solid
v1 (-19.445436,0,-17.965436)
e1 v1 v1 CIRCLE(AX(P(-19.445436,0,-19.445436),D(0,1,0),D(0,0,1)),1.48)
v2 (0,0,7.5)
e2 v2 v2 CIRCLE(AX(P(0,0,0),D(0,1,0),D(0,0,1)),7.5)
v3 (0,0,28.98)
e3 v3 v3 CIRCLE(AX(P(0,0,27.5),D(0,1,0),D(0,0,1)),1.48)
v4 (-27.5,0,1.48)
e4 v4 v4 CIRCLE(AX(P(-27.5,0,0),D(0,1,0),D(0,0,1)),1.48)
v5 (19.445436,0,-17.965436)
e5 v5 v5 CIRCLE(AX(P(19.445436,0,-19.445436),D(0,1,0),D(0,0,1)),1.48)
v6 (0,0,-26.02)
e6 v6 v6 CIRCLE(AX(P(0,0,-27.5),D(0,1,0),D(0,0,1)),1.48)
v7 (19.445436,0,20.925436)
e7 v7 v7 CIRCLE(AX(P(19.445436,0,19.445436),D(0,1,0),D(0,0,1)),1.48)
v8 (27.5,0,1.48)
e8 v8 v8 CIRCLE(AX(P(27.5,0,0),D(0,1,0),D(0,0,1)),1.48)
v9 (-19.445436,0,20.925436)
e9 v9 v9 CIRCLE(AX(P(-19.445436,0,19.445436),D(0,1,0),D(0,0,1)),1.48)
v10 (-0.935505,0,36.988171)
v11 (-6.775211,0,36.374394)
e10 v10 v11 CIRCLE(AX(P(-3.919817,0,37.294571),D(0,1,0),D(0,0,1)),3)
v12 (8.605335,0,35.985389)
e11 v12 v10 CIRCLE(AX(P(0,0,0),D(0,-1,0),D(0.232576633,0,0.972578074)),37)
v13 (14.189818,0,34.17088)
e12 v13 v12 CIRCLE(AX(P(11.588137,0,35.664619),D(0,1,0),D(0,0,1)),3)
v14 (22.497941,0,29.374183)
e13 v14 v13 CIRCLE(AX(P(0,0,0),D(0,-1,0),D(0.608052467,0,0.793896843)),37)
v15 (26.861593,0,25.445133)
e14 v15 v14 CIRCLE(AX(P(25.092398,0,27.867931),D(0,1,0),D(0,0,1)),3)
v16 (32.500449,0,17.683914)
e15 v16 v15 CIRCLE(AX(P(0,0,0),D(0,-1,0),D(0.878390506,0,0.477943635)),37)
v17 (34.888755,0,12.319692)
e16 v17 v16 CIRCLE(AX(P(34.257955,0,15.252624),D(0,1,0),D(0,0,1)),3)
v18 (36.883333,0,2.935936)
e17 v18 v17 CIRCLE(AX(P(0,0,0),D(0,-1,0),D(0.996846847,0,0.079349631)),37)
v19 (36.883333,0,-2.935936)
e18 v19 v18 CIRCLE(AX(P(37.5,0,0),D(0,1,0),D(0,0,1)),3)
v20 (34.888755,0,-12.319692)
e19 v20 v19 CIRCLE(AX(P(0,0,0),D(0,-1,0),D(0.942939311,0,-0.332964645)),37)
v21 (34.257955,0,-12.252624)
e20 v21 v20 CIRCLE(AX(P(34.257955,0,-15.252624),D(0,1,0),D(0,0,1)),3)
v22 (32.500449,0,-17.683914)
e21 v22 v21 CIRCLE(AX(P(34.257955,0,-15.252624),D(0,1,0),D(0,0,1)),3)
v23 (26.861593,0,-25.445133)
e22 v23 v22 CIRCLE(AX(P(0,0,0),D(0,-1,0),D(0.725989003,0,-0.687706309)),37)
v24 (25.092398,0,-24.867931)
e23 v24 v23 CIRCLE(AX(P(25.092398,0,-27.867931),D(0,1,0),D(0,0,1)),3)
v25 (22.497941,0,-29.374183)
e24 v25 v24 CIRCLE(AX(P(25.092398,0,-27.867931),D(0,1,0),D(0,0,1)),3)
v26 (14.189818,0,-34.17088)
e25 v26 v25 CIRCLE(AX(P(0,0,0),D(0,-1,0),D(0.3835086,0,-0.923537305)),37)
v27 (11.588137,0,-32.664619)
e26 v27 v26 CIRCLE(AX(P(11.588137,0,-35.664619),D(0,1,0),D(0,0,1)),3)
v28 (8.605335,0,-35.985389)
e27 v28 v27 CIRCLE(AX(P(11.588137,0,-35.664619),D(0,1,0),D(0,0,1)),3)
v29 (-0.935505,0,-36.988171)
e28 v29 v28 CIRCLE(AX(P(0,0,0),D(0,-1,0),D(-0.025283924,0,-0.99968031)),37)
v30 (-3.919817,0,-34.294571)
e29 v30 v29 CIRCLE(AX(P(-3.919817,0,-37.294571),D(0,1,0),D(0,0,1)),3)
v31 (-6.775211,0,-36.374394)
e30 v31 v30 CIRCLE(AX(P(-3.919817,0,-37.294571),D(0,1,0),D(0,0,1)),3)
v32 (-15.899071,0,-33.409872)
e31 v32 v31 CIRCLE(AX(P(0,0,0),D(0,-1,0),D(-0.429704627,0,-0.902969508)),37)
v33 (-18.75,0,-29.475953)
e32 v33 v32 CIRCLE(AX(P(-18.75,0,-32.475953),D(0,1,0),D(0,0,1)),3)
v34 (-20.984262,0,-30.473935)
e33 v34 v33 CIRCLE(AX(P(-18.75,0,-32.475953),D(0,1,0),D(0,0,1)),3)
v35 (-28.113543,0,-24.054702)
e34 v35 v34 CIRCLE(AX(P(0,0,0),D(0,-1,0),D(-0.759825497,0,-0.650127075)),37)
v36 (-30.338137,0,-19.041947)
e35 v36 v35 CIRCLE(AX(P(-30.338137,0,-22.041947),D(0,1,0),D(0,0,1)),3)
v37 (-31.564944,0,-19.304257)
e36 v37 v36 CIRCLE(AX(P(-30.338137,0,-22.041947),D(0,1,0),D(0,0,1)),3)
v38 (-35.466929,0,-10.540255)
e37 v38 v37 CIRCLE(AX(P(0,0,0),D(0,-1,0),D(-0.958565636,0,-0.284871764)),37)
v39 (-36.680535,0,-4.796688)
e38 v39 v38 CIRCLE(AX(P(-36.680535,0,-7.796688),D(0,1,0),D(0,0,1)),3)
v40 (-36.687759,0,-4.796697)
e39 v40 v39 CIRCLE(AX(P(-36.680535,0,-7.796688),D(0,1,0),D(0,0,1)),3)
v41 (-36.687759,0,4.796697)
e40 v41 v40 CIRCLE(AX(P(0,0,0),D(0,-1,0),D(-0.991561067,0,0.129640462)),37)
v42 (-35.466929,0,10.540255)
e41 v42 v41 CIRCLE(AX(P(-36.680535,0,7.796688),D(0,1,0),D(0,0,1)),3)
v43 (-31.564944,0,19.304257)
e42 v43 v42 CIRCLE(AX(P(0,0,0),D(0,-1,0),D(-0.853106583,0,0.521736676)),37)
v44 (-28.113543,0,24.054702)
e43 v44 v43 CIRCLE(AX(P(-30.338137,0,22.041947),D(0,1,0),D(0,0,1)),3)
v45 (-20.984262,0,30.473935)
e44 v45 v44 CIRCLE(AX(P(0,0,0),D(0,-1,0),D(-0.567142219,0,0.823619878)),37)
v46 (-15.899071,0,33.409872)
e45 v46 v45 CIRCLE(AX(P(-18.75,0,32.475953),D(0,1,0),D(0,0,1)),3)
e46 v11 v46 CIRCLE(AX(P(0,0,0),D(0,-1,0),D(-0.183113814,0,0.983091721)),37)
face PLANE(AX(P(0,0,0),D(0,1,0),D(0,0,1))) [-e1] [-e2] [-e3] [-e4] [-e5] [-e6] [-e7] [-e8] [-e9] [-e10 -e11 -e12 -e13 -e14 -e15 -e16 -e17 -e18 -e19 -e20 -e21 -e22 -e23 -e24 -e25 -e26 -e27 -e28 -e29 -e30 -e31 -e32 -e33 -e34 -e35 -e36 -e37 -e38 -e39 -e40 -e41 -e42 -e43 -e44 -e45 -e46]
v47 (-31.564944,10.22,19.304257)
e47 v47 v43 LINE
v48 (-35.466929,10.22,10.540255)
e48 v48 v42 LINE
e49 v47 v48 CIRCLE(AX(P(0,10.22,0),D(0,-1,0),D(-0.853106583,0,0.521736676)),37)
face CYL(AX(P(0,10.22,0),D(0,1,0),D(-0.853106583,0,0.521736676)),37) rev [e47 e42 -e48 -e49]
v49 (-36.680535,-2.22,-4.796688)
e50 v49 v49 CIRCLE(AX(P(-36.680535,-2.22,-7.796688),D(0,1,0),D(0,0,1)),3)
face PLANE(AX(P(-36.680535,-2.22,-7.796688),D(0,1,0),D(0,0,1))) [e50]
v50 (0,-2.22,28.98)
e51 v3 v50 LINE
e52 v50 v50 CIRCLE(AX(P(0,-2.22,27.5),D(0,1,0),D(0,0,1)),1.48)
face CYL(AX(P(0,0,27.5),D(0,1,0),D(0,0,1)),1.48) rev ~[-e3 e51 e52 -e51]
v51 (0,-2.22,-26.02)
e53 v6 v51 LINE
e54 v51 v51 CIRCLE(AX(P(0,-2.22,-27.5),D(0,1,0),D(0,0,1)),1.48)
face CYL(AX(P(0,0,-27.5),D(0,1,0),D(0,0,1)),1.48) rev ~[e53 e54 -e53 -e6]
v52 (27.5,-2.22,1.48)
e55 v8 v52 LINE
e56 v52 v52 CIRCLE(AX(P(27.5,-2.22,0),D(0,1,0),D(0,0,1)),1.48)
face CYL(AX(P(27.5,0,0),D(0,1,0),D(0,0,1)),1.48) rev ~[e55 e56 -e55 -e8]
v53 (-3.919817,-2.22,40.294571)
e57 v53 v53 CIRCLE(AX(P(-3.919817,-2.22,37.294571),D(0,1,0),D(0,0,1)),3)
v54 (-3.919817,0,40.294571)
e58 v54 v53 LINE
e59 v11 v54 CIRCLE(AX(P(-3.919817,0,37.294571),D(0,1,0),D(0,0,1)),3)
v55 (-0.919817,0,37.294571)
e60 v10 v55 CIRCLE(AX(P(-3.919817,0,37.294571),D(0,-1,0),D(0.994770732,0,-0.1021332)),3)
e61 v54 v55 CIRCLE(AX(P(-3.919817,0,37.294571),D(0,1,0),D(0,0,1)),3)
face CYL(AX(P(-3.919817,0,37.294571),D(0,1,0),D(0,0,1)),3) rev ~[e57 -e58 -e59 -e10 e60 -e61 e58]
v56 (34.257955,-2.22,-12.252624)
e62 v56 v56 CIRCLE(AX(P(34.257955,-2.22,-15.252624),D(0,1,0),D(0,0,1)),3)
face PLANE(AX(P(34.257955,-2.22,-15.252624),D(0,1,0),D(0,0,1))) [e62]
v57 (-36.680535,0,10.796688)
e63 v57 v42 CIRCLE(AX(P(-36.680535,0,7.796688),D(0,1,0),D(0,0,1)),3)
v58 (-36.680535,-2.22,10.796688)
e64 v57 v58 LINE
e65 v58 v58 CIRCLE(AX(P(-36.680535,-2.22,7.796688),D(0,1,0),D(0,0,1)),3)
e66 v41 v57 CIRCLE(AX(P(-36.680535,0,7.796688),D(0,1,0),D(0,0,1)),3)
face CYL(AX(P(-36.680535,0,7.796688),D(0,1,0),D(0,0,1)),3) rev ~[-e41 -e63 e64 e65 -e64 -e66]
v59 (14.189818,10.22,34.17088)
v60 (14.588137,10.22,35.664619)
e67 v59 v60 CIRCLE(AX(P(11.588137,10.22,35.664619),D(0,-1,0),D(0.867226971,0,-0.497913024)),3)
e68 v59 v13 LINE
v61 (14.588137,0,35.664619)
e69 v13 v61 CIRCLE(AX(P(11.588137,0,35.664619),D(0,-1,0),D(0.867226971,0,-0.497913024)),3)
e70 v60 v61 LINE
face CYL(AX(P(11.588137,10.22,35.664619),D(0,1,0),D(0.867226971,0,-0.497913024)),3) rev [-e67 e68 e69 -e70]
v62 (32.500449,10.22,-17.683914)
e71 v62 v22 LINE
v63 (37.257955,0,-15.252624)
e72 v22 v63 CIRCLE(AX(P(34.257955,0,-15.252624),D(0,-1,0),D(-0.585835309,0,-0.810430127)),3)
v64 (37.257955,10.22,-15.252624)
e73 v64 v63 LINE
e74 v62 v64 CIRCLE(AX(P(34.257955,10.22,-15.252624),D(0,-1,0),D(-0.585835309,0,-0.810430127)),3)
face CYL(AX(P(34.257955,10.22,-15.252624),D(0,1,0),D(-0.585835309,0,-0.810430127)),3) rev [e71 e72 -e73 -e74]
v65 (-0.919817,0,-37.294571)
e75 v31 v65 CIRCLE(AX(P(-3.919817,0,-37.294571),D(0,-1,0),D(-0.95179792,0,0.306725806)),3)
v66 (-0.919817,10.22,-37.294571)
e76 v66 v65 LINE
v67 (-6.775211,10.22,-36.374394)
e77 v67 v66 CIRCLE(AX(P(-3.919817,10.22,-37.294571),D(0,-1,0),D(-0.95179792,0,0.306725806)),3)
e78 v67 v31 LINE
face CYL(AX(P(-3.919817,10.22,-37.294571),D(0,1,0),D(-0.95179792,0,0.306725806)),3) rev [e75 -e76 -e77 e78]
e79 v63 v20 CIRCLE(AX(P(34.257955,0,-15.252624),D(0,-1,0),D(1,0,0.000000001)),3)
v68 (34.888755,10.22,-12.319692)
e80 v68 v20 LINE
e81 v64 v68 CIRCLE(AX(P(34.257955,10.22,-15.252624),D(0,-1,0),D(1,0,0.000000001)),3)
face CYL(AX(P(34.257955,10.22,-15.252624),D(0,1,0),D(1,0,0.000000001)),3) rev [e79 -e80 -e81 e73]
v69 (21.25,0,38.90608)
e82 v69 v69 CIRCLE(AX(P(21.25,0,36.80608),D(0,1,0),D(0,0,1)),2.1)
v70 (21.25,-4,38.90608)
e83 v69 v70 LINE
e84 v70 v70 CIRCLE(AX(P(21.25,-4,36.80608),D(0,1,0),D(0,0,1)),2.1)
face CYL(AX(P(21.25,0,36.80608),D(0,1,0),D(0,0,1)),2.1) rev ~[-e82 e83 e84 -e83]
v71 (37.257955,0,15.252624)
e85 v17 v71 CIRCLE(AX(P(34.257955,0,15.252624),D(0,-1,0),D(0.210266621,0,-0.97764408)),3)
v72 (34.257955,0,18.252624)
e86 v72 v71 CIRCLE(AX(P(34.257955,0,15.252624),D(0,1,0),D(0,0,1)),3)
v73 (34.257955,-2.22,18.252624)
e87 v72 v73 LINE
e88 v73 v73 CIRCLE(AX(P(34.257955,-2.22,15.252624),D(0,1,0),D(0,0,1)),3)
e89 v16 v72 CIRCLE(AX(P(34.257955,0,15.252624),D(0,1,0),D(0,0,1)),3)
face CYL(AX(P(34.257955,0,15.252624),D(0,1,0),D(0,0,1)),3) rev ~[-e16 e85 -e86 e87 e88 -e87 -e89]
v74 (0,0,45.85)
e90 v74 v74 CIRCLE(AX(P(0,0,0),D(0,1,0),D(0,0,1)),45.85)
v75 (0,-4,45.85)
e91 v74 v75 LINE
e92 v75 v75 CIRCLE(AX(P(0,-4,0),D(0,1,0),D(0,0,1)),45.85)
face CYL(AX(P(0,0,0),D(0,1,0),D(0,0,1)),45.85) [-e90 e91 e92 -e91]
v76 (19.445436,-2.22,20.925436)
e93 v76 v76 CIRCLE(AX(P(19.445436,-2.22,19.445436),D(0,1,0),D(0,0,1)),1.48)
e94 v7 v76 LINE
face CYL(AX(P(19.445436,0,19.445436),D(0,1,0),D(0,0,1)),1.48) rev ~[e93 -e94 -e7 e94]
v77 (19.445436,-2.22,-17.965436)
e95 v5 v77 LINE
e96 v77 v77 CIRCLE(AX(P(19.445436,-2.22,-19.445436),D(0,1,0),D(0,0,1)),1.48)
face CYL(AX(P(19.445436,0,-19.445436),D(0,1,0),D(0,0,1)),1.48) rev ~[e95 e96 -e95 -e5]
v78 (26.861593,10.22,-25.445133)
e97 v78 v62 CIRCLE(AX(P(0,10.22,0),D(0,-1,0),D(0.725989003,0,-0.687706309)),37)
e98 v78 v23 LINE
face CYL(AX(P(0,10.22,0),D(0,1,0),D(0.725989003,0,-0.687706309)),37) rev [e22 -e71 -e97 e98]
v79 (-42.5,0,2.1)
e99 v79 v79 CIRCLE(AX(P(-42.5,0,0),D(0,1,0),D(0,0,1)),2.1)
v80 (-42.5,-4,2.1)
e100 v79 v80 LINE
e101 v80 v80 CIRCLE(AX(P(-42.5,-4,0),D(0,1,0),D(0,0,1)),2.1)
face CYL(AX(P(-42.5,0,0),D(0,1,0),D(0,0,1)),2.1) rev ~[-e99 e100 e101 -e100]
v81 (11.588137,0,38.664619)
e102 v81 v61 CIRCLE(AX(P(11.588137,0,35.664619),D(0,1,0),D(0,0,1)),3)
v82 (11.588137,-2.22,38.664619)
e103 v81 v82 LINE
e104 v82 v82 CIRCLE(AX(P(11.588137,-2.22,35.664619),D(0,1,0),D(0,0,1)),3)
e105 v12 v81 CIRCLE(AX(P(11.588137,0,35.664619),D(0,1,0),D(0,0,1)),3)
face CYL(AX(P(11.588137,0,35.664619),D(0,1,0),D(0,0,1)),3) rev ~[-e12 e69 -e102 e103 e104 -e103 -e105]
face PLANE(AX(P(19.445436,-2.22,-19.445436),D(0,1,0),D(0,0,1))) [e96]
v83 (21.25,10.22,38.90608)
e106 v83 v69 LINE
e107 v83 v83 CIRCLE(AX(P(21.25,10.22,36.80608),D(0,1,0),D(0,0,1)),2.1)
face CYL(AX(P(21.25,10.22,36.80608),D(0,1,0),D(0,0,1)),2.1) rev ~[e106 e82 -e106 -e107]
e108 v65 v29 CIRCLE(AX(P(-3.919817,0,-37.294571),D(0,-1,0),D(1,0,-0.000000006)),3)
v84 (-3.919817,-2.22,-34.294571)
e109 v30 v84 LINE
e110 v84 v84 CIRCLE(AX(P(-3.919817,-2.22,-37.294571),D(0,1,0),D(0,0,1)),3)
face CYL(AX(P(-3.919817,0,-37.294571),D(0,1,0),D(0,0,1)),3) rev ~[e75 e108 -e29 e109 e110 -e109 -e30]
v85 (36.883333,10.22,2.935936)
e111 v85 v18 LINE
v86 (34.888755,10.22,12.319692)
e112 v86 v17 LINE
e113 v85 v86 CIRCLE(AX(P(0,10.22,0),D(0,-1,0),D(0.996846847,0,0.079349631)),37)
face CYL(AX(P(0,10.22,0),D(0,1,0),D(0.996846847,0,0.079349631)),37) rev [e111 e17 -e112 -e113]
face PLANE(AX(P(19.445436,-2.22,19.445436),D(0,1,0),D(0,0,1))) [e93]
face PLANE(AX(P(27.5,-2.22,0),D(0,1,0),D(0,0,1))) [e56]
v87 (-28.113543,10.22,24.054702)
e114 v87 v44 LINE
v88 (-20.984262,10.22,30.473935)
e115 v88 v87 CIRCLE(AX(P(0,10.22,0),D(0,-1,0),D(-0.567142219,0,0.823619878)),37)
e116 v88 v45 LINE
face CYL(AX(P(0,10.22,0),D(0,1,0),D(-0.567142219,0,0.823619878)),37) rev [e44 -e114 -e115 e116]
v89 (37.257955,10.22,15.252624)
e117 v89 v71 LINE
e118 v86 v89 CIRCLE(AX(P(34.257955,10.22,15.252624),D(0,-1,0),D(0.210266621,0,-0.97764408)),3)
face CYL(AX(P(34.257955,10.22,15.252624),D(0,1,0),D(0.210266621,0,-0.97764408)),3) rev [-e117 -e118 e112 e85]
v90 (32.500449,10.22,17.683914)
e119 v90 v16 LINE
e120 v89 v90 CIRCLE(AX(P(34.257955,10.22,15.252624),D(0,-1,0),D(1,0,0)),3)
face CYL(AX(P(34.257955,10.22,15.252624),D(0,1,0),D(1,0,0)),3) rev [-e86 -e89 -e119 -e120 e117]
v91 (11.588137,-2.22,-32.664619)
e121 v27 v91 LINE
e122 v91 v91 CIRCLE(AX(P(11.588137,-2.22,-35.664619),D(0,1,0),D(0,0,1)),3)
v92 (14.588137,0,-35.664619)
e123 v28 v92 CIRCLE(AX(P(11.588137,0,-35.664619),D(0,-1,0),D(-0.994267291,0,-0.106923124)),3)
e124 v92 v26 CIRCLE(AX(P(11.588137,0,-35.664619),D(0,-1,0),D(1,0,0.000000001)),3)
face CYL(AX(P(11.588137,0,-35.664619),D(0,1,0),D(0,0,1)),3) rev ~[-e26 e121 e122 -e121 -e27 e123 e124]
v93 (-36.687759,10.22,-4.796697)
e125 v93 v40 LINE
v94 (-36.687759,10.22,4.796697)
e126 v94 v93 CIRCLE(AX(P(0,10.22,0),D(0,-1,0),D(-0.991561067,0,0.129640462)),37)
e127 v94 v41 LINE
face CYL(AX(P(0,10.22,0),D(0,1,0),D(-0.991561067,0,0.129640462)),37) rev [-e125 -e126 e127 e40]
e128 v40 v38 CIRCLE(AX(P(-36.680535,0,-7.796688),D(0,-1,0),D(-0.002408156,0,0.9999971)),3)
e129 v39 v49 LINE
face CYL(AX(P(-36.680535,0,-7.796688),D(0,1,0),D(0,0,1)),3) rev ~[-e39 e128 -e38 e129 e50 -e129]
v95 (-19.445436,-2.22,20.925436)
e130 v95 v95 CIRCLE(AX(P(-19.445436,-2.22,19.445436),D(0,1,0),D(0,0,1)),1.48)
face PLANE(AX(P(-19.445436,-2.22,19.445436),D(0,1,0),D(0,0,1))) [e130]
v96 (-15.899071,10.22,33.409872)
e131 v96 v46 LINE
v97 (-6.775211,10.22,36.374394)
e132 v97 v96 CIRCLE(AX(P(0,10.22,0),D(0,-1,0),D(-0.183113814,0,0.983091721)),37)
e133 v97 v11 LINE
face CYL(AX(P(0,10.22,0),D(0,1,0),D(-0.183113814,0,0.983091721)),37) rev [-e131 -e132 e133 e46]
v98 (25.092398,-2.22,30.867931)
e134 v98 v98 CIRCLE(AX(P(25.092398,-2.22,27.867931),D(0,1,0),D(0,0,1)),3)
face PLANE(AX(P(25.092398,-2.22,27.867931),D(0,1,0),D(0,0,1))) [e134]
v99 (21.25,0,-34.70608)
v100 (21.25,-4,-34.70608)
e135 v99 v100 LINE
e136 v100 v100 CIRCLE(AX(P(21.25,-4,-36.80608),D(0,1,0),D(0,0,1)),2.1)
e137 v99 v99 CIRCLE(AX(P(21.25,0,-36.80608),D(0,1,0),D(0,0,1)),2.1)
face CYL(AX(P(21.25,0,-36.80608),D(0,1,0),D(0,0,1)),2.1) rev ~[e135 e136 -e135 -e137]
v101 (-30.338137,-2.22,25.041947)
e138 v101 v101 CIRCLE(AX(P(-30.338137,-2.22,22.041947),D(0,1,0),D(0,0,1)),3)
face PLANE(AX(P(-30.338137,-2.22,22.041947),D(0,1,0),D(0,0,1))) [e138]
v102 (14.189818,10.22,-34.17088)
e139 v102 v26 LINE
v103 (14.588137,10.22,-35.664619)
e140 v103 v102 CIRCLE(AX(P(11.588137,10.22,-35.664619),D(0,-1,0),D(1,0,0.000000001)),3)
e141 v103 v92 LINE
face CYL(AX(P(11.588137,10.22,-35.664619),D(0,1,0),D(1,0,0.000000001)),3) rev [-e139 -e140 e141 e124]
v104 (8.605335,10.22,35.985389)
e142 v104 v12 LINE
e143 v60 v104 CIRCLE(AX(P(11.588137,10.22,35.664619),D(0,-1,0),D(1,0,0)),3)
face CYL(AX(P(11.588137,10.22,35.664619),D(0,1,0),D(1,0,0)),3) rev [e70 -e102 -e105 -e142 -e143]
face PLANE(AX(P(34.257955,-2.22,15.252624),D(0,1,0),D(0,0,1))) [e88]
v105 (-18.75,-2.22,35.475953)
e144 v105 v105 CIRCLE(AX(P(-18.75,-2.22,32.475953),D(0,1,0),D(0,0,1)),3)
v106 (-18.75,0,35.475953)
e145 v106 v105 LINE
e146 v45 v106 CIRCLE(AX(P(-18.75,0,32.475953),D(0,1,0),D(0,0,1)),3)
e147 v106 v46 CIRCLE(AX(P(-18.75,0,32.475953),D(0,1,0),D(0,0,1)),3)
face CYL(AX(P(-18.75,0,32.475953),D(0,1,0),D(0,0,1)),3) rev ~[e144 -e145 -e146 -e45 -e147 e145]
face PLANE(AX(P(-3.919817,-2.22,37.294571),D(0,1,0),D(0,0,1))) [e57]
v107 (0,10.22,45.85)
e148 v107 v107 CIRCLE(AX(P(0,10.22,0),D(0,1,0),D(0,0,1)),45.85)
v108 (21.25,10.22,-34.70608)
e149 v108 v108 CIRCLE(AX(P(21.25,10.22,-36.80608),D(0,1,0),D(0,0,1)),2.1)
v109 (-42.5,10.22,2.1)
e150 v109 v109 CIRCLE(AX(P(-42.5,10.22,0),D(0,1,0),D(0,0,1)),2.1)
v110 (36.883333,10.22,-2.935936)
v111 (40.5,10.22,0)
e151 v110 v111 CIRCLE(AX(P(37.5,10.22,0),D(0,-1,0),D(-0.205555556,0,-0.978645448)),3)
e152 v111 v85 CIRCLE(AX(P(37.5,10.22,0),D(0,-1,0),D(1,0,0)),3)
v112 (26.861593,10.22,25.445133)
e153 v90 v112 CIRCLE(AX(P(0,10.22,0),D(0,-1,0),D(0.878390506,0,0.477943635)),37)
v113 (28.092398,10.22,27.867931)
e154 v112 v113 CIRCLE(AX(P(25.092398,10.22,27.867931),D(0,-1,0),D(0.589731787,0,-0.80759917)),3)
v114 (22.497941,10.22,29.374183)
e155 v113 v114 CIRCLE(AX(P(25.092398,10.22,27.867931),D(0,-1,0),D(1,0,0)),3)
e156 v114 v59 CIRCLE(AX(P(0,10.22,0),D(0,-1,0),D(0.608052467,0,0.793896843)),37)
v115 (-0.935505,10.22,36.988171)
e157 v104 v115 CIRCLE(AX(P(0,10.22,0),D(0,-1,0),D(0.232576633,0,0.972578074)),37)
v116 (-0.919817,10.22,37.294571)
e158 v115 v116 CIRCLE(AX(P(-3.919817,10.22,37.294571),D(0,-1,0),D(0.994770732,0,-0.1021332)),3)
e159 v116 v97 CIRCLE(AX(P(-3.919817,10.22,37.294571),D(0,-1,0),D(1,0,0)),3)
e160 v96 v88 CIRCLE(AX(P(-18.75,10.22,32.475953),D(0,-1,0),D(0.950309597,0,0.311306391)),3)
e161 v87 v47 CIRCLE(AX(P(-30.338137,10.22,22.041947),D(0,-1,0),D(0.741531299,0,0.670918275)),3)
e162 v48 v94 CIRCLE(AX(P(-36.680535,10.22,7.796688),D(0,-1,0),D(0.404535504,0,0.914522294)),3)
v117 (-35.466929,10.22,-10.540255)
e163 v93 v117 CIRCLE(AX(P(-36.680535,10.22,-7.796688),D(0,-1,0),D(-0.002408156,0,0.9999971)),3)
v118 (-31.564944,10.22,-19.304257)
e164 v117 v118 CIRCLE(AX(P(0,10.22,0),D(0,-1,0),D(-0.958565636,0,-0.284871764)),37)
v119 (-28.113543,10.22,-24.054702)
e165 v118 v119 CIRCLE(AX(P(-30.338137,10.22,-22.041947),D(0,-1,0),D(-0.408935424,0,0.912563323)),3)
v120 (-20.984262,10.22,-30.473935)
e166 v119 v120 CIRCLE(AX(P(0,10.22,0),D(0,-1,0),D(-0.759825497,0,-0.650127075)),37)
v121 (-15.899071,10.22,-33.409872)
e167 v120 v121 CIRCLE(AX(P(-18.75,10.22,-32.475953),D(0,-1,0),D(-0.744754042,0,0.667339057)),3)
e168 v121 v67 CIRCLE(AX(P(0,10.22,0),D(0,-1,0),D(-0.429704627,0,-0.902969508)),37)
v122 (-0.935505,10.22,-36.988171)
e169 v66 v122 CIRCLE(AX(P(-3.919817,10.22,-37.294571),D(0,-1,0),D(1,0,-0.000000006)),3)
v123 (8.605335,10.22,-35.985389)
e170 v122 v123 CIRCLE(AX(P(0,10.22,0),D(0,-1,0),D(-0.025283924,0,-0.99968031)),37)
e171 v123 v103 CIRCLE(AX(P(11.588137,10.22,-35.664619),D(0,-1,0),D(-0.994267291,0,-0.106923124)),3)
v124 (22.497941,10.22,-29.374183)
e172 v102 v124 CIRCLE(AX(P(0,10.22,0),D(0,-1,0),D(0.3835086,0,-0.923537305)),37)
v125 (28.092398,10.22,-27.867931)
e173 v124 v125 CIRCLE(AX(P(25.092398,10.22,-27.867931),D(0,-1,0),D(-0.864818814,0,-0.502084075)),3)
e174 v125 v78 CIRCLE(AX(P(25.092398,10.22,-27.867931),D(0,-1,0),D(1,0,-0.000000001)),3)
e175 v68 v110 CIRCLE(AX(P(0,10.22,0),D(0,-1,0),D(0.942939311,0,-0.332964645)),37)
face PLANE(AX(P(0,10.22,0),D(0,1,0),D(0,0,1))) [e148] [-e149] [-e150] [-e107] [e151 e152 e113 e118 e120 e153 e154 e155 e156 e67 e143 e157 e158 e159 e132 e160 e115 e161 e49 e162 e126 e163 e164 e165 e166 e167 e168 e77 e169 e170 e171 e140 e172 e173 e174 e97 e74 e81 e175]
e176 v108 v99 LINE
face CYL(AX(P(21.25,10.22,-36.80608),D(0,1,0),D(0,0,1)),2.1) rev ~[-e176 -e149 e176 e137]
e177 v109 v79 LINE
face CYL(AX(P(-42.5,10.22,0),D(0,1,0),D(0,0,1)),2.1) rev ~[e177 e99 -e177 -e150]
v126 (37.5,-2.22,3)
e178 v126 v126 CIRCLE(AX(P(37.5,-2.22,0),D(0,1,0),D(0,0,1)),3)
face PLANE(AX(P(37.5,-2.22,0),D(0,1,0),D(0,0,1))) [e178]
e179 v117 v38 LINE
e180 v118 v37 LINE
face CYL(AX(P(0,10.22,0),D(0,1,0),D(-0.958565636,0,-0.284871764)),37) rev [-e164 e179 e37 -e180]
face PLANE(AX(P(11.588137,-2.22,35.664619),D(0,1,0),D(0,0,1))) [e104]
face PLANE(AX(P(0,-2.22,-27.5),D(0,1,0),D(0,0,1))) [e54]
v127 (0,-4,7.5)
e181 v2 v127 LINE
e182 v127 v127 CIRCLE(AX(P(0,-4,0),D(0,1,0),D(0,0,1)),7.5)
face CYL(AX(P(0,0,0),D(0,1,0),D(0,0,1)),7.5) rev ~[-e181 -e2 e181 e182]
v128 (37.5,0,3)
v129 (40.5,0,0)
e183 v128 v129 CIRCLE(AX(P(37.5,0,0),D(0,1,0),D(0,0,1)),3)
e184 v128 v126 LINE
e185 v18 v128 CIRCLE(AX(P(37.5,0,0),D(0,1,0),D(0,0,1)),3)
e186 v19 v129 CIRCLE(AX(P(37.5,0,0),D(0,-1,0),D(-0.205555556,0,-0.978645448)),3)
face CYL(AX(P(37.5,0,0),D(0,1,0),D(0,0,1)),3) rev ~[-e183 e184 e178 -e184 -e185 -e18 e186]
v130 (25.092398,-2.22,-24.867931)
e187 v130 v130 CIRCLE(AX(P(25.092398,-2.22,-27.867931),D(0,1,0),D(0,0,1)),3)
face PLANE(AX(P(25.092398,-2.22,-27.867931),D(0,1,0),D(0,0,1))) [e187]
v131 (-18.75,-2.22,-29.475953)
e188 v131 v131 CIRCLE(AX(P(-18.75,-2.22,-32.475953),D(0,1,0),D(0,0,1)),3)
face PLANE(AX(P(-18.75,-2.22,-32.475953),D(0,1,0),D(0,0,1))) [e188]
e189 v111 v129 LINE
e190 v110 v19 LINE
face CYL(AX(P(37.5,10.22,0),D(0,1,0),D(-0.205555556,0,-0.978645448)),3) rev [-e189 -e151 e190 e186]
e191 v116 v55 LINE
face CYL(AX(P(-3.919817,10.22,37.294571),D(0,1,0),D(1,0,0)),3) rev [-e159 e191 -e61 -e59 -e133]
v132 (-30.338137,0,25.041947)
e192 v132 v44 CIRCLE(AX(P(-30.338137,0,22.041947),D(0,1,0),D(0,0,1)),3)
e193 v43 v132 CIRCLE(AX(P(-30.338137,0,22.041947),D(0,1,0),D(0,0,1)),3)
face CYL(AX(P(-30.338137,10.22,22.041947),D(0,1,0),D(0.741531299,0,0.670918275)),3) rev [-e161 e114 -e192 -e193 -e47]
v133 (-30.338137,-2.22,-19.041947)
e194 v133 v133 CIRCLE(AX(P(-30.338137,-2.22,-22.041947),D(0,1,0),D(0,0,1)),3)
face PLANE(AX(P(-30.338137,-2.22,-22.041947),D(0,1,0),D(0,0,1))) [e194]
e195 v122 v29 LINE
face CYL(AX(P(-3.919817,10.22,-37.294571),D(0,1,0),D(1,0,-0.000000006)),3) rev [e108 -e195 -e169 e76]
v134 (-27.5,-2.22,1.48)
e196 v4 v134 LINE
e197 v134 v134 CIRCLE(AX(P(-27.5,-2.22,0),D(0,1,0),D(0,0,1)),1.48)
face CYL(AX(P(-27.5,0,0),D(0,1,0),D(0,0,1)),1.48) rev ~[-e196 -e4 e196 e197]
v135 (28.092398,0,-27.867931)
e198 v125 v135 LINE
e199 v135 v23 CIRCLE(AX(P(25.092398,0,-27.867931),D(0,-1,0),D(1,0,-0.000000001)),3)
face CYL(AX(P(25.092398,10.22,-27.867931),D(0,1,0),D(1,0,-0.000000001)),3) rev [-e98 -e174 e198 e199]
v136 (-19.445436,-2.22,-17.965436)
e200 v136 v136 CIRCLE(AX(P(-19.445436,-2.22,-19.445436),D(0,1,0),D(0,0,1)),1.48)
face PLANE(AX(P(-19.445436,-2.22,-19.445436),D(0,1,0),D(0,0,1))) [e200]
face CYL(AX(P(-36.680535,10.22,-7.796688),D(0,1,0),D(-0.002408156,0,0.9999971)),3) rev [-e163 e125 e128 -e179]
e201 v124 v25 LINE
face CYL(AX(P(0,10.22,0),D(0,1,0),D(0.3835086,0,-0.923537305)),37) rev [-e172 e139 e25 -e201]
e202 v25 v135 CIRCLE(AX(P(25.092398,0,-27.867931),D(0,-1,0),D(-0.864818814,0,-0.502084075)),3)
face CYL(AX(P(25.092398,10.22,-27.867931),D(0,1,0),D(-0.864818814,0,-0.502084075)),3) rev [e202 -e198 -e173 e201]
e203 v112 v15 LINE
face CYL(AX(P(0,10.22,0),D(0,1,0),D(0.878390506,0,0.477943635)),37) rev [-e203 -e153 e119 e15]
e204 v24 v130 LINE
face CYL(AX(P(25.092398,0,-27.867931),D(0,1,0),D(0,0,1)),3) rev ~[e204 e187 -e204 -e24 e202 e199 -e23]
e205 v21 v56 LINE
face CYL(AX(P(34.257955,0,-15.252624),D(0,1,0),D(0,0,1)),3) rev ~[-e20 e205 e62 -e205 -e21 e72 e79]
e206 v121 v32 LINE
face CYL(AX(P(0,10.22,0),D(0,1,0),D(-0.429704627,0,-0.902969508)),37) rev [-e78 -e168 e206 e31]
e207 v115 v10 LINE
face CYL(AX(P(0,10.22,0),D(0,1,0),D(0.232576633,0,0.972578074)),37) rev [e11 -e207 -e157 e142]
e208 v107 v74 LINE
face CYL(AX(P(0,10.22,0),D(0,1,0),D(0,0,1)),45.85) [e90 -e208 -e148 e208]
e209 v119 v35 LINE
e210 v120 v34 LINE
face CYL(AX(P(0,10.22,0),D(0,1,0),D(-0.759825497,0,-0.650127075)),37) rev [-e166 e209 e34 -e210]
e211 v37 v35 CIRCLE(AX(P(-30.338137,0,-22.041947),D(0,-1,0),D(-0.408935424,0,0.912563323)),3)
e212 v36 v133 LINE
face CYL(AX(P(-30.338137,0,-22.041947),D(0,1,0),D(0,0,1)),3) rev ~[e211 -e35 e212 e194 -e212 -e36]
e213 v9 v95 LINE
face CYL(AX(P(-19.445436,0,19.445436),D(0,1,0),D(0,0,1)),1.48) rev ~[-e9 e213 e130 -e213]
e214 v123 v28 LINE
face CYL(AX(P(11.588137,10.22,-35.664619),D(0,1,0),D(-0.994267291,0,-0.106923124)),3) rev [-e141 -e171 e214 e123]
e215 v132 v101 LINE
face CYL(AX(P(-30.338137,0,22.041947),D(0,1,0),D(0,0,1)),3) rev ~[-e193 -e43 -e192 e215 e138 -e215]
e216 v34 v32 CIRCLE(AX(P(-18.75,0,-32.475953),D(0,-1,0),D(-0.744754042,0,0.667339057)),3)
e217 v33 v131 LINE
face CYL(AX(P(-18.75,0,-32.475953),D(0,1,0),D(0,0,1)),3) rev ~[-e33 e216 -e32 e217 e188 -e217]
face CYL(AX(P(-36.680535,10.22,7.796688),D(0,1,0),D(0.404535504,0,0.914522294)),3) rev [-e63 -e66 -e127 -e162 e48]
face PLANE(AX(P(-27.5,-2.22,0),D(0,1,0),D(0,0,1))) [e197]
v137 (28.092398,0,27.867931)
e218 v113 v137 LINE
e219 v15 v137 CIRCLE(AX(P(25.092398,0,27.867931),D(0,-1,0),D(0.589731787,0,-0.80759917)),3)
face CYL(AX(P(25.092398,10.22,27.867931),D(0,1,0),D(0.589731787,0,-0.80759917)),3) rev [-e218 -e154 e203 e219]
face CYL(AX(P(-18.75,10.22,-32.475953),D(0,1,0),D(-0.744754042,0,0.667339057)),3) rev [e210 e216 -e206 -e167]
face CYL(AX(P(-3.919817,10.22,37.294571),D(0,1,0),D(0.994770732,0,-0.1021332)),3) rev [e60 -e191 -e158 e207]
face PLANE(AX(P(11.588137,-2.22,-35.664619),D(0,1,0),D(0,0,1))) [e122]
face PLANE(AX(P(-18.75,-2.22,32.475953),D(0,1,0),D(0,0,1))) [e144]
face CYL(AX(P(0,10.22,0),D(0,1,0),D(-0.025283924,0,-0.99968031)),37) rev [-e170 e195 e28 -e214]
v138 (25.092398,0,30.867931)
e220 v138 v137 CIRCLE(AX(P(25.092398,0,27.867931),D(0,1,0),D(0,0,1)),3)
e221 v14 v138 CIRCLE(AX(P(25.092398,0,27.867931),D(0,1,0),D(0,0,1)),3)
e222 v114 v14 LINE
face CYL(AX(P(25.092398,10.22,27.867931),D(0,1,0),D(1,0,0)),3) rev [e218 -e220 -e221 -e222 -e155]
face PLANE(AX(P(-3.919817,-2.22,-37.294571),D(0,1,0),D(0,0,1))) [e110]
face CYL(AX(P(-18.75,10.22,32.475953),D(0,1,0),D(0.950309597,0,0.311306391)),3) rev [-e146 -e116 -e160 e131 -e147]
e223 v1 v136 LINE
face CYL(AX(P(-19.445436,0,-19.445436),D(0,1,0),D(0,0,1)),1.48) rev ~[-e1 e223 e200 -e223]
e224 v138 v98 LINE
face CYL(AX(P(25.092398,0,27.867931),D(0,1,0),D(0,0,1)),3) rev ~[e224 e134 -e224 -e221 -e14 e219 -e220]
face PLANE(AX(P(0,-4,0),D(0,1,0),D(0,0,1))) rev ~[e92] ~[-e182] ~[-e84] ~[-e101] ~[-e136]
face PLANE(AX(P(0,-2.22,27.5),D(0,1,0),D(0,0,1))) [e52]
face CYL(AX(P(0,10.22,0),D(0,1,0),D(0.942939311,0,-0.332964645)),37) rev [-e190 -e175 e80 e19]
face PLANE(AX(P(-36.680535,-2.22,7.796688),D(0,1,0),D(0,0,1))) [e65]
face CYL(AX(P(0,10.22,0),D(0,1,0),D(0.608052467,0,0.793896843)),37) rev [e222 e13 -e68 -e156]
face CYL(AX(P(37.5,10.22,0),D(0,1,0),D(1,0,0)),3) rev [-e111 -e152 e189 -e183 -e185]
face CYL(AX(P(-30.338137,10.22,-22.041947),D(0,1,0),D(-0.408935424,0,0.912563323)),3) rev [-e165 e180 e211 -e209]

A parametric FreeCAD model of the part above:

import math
import FreeCAD as App
import Part
import Sketcher
Q = App.Units.Quantity

doc = App.newDocument("Part")
params = doc.addObject("Spreadsheet::Sheet", "Params")
for row, (alias, value) in enumerate([
    ("sketch1_diameter", "15 mm"),
    ("sketch1_diameter2", "91.7 mm"),
    ("sketch1_diameter3", "4.2 mm"),
    ("pad1_length", "4 mm"),
    ("sketch2_diameter", "6 mm"),
    ("sketch2_diameter2", "2.96 mm"),
    ("pocket1_length", "2.22 mm"),
    ("sketch3_radius", "37 mm"),
    ("sketch3_radius2", "3 mm"),
    ("sketch3_diameter", "91.7 mm"),
    ("sketch3_diameter2", "4.2 mm"),
    ("pad2_length", "10.22 mm"),
], start=1):
    params.set(f"A{row}", alias)
    params.set(f"B{row}", "=" + value)
    params.setAlias(f"B{row}", alias)

body = doc.addObject("PartDesign::Body", "Body")

# Sketch on XZ plane
sketch1 = body.newObject("Sketcher::SketchObject", "Sketch")
sketch1.AttachmentSupport = (doc.getObject("XZ_Plane"), [""])
sketch1.MapMode = "FlatFace"
sketch1.addGeometry([
    Part.Circle(App.Vector(0, 0, 0), App.Vector(0, 0, 1), 45.9),  # 0
    Part.Circle(App.Vector(-42.5, 0, 0), App.Vector(0, 0, 1), 2.1),  # 1
    Part.Circle(App.Vector(21.2, -36.8, 0), App.Vector(0, 0, 1), 2.1),  # 2
    Part.Circle(App.Vector(0, 0, 0), App.Vector(0, 0, 1), 7.5),  # 3
    Part.Circle(App.Vector(21.2, 36.8, 0), App.Vector(0, 0, 1), 2.1),  # 4
], False)
sketch1.addConstraint([
    Sketcher.Constraint("Coincident", 0, 3, -1, 1),
    Sketcher.Constraint("Coincident", 3, 3, -1, 1),
    Sketcher.Constraint("Equal", 1, 2),
    Sketcher.Constraint("Equal", 2, 4),
    Sketcher.Constraint("Symmetric", 2, 3, 4, 3, -1),
    Sketcher.Constraint("PointOnObject", 1, 3, -1),
    Sketcher.Constraint("Diameter", 3, Q("15 mm")),
    Sketcher.Constraint("Diameter", 0, Q("91.7 mm")),
    Sketcher.Constraint("Diameter", 1, Q("4.2 mm")),
    Sketcher.Constraint("DistanceX", 1, 3, -1, 1, Q("42.5 mm")),
    Sketcher.Constraint("DistanceX", -1, 1, 2, 3, Q("21.25 mm")),
    Sketcher.Constraint("DistanceY", 2, 3, -1, 1, Q("36.80608 mm")),
])
sketch1.setExpression("Constraints[6]", "Params.sketch1_diameter")
sketch1.setExpression("Constraints[7]", "Params.sketch1_diameter2")
sketch1.setExpression("Constraints[8]", "Params.sketch1_diameter3")
pad1 = body.newObject("PartDesign::Pad", "Pad")
pad1.Profile = sketch1
pad1.setExpression("Length", "Params.pad1_length")

# Sketch on XZ plane
sketch2 = body.newObject("Sketcher::SketchObject", "Sketch001")
sketch2.AttachmentSupport = (doc.getObject("XZ_Plane"), [""])
sketch2.MapMode = "FlatFace"
sketch2.addGeometry([
    Part.Circle(App.Vector(-27.5, 0, 0), App.Vector(0, 0, 1), 1.5),  # 0
    Part.Circle(App.Vector(-19.4, -19.4, 0), App.Vector(0, 0, 1), 1.5),  # 1
    Part.Circle(App.Vector(0, -27.5, 0), App.Vector(0, 0, 1), 1.5),  # 2
    Part.Circle(App.Vector(19.4, -19.4, 0), App.Vector(0, 0, 1), 1.5),  # 3
    Part.Circle(App.Vector(27.5, 0, 0), App.Vector(0, 0, 1), 1.5),  # 4
    Part.Circle(App.Vector(19.4, 19.4, 0), App.Vector(0, 0, 1), 1.5),  # 5
    Part.Circle(App.Vector(0, 27.5, 0), App.Vector(0, 0, 1), 1.5),  # 6
    Part.Circle(App.Vector(-19.4, 19.4, 0), App.Vector(0, 0, 1), 1.5),  # 7
    Part.Circle(App.Vector(-36.7, -7.8, 0), App.Vector(0, 0, 1), 3),  # 8
    Part.Circle(App.Vector(-36.7, 7.8, 0), App.Vector(0, 0, 1), 3),  # 9
    Part.Circle(App.Vector(-30.3, -22, 0), App.Vector(0, 0, 1), 3),  # 10
    Part.Circle(App.Vector(-30.3, 22, 0), App.Vector(0, 0, 1), 3),  # 11
    Part.Circle(App.Vector(-18.8, 32.5, 0), App.Vector(0, 0, 1), 3),  # 12
    Part.Circle(App.Vector(-3.9, 37.3, 0), App.Vector(0, 0, 1), 3),  # 13
    Part.Circle(App.Vector(11.6, 35.7, 0), App.Vector(0, 0, 1), 3),  # 14
    Part.Circle(App.Vector(25.1, 27.9, 0), App.Vector(0, 0, 1), 3),  # 15
    Part.Circle(App.Vector(34.3, 15.3, 0), App.Vector(0, 0, 1), 3),  # 16
    Part.Circle(App.Vector(37.5, 0, 0), App.Vector(0, 0, 1), 3),  # 17
    Part.Circle(App.Vector(34.3, -15.3, 0), App.Vector(0, 0, 1), 3),  # 18
    Part.Circle(App.Vector(25.1, -27.9, 0), App.Vector(0, 0, 1), 3),  # 19
    Part.Circle(App.Vector(11.6, -35.7, 0), App.Vector(0, 0, 1), 3),  # 20
    Part.Circle(App.Vector(-3.9, -37.3, 0), App.Vector(0, 0, 1), 3),  # 21
    Part.Circle(App.Vector(-18.8, -32.5, 0), App.Vector(0, 0, 1), 3),  # 22
], False)
sketch2.addConstraint([
    Sketcher.Constraint("Equal", 0, 1),
    Sketcher.Constraint("Equal", 1, 2),
    Sketcher.Constraint("Equal", 2, 3),
    Sketcher.Constraint("Equal", 3, 4),
    Sketcher.Constraint("Equal", 4, 5),
    Sketcher.Constraint("Equal", 5, 6),
    Sketcher.Constraint("Equal", 6, 7),
    Sketcher.Constraint("Equal", 8, 9),
    Sketcher.Constraint("Equal", 9, 10),
    Sketcher.Constraint("Equal", 10, 11),
    Sketcher.Constraint("Equal", 11, 12),
    Sketcher.Constraint("Equal", 12, 13),
    Sketcher.Constraint("Equal", 13, 14),
    Sketcher.Constraint("Equal", 14, 15),
    Sketcher.Constraint("Equal", 15, 16),
    Sketcher.Constraint("Equal", 16, 17),
    Sketcher.Constraint("Equal", 17, 18),
    Sketcher.Constraint("Equal", 18, 19),
    Sketcher.Constraint("Equal", 19, 20),
    Sketcher.Constraint("Equal", 20, 21),
    Sketcher.Constraint("Equal", 21, 22),
    Sketcher.Constraint("Symmetric", 0, 3, 4, 3, -1, 1),
    Sketcher.Constraint("Symmetric", 1, 3, 5, 3, -1, 1),
    Sketcher.Constraint("Symmetric", 2, 3, 6, 3, -1, 1),
    Sketcher.Constraint("Symmetric", 3, 3, 7, 3, -1, 1),
    Sketcher.Constraint("Symmetric", 1, 3, 3, 3, -2),
    Sketcher.Constraint("Symmetric", 8, 3, 9, 3, -1),
    Sketcher.Constraint("Symmetric", 10, 3, 11, 3, -1),
    Sketcher.Constraint("Symmetric", 16, 3, 18, 3, -1),
    Sketcher.Constraint("Symmetric", 15, 3, 19, 3, -1),
    Sketcher.Constraint("Symmetric", 14, 3, 20, 3, -1),
    Sketcher.Constraint("Symmetric", 13, 3, 21, 3, -1),
    Sketcher.Constraint("Symmetric", 12, 3, 22, 3, -1),
    Sketcher.Constraint("PointOnObject", 0, 3, -1),
    Sketcher.Constraint("PointOnObject", 2, 3, -2),
    Sketcher.Constraint("PointOnObject", 17, 3, -1),
    Sketcher.Constraint("Diameter", 8, Q("6 mm")),
    Sketcher.Constraint("Diameter", 0, Q("2.96 mm")),
    Sketcher.Constraint("DistanceX", 0, 3, 4, 3, Q("55 mm")),
    Sketcher.Constraint("DistanceX", 4, 3, 17, 3, Q("10 mm")),
    Sketcher.Constraint("DistanceY", 2, 3, -1, 1, Q("27.5 mm")),
    Sketcher.Constraint("DistanceX", 12, 3, -1, 1, Q("18.75 mm")),
    Sketcher.Constraint("DistanceX", 8, 3, 1, 3, Q("17.235099 mm")),
    Sketcher.Constraint("DistanceX", 10, 3, 1, 3, Q("10.892701 mm")),
    Sketcher.Constraint("DistanceX", 14, 3, 5, 3, Q("7.857299 mm")),
    Sketcher.Constraint("DistanceY", 8, 3, -1, 1, Q("7.796688 mm")),
    Sketcher.Constraint("DistanceY", -1, 1, 13, 3, Q("37.294571 mm")),
    Sketcher.Constraint("DistanceY", -1, 1, 14, 3, Q("35.664619 mm")),
    Sketcher.Constraint("DistanceY", -1, 1, 15, 3, Q("27.867931 mm")),
    Sketcher.Constraint("DistanceY", 1, 3, 8, 3, Q("11.648748 mm")),
    Sketcher.Constraint("DistanceY", 10, 3, 1, 3, Q("2.59651 mm")),
    Sketcher.Constraint("DistanceY", 12, 3, 13, 3, Q("4.818618 mm")),
    Sketcher.Constraint("DistanceX", 7, 3, 13, 3, Q("15.525619 mm")),
    Sketcher.Constraint("DistanceX", 5, 3, 15, 3, Q("5.646961 mm")),
    Sketcher.Constraint("DistanceX", 5, 3, 16, 3, Q("14.812518 mm")),
    Sketcher.Constraint("DistanceY", 18, 3, 16, 3, Q("30.505248 mm")),
    Sketcher.Constraint("DistanceX", 1, 3, -1, 1, Q("19.445436 mm")),
])
sketch2.setExpression("Constraints[36]", "Params.sketch2_diameter")
sketch2.setExpression("Constraints[37]", "Params.sketch2_diameter2")
pocket1 = body.newObject("PartDesign::Pocket", "Pocket")
pocket1.Profile = sketch2
pocket1.setExpression("Length", "Params.pocket1_length")
pocket1.Reversed = True

# Sketch on XZ plane
sketch3 = body.newObject("Sketcher::SketchObject", "Sketch002")
sketch3.AttachmentSupport = (doc.getObject("XZ_Plane"), [""])
sketch3.MapMode = "FlatFace"
sketch3.AttachmentOffset = App.Placement(App.Vector(0, 0, -10.22), App.Rotation())
sketch3.addGeometry([
    Part.Circle(App.Vector(0, 0, 0), App.Vector(0, 0, 1), 45.85),  # 0
    Part.Circle(App.Vector(-42.5, 0, 0), App.Vector(0, 0, 1), 2.1),  # 1
    Part.Circle(App.Vector(21.25, -36.81, 0), App.Vector(0, 0, 1), 2.1),  # 2
    Part.ArcOfCircle(Part.Circle(App.Vector(0, 0, 0), App.Vector(0, 0, 1), 37), math.radians(-19.45), math.radians(-4.55)),  # 3
    Part.ArcOfCircle(Part.Circle(App.Vector(37.5, 0, 0), App.Vector(0, 0, 1), 3), math.radians(-102), math.radians(0)),  # 4
    Part.ArcOfCircle(Part.Circle(App.Vector(37.5, 0, 0), App.Vector(0, 0, 1), 3), math.radians(0), math.radians(102)),  # 5
    Part.ArcOfCircle(Part.Circle(App.Vector(0, 0, 0), App.Vector(0, 0, 1), 37), math.radians(4.55), math.radians(19.45)),  # 6
    Part.ArcOfCircle(Part.Circle(App.Vector(34.26, 15.25, 0), App.Vector(0, 0, 1), 3), math.radians(-78), math.radians(0)),  # 7
    Part.ArcOfCircle(Part.Circle(App.Vector(34.26, 15.25, 0), App.Vector(0, 0, 1), 3), math.radians(0), math.radians(126)),  # 8
    Part.ArcOfCircle(Part.Circle(App.Vector(0, 0, 0), App.Vector(0, 0, 1), 37), math.radians(28.55), math.radians(43.45)),  # 9
    Part.ArcOfCircle(Part.Circle(App.Vector(25.09, 27.87, 0), App.Vector(0, 0, 1), 3), math.radians(-54), math.radians(0)),  # 10
    Part.ArcOfCircle(Part.Circle(App.Vector(25.09, 27.87, 0), App.Vector(0, 0, 1), 3), math.radians(0), math.radians(150)),  # 11
    Part.ArcOfCircle(Part.Circle(App.Vector(0, 0, 0), App.Vector(0, 0, 1), 37), math.radians(52.55), math.radians(67.45)),  # 12
    Part.ArcOfCircle(Part.Circle(App.Vector(11.59, 35.66, 0), App.Vector(0, 0, 1), 3), math.radians(-30), math.radians(0)),  # 13
    Part.ArcOfCircle(Part.Circle(App.Vector(11.59, 35.66, 0), App.Vector(0, 0, 1), 3), math.radians(0), math.radians(174)),  # 14
    Part.ArcOfCircle(Part.Circle(App.Vector(0, 0, 0), App.Vector(0, 0, 1), 37), math.radians(76.55), math.radians(91.45)),  # 15
    Part.ArcOfCircle(Part.Circle(App.Vector(-3.92, 37.29, 0), App.Vector(0, 0, 1), 3), math.radians(-5.86), math.radians(0)),  # 16
    Part.ArcOfCircle(Part.Circle(App.Vector(-3.92, 37.29, 0), App.Vector(0, 0, 1), 3), math.radians(0), math.radians(198)),  # 17
    Part.ArcOfCircle(Part.Circle(App.Vector(0, 0, 0), App.Vector(0, 0, 1), 37), math.radians(100.55), math.radians(115.45)),  # 18
    Part.ArcOfCircle(Part.Circle(App.Vector(-18.75, 32.48, 0), App.Vector(0, 0, 1), 3), math.radians(18), math.radians(222)),  # 19
    Part.ArcOfCircle(Part.Circle(App.Vector(0, 0, 0), App.Vector(0, 0, 1), 37), math.radians(124.55), math.radians(139.45)),  # 20
    Part.ArcOfCircle(Part.Circle(App.Vector(-30.34, 22.04, 0), App.Vector(0, 0, 1), 3), math.radians(42), math.radians(246)),  # 21
    Part.ArcOfCircle(Part.Circle(App.Vector(0, 0, 0), App.Vector(0, 0, 1), 37), math.radians(148.55), math.radians(163.45)),  # 22
    Part.ArcOfCircle(Part.Circle(App.Vector(-36.68, 7.8, 0), App.Vector(0, 0, 1), 3), math.radians(66), math.radians(270)),  # 23
    Part.ArcOfCircle(Part.Circle(App.Vector(0, 0, 0), App.Vector(0, 0, 1), 37), math.radians(172.55), math.radians(187.45)),  # 24
    Part.ArcOfCircle(Part.Circle(App.Vector(-36.68, -7.8, 0), App.Vector(0, 0, 1), 3), math.radians(90), math.radians(294)),  # 25
    Part.ArcOfCircle(Part.Circle(App.Vector(0, 0, 0), App.Vector(0, 0, 1), 37), math.radians(-163.45), math.radians(-148.55)),  # 26
    Part.ArcOfCircle(Part.Circle(App.Vector(-30.34, -22.04, 0), App.Vector(0, 0, 1), 3), math.radians(114), math.radians(318)),  # 27
    Part.ArcOfCircle(Part.Circle(App.Vector(0, 0, 0), App.Vector(0, 0, 1), 37), math.radians(-139.45), math.radians(-124.55)),  # 28
    Part.ArcOfCircle(Part.Circle(App.Vector(-18.75, -32.48, 0), App.Vector(0, 0, 1), 3), math.radians(138), math.radians(342)),  # 29
    Part.ArcOfCircle(Part.Circle(App.Vector(0, 0, 0), App.Vector(0, 0, 1), 37), math.radians(-115.45), math.radians(-100.55)),  # 30
    Part.ArcOfCircle(Part.Circle(App.Vector(-3.92, -37.29, 0), App.Vector(0, 0, 1), 3), math.radians(162), math.radians(360)),  # 31
    Part.ArcOfCircle(Part.Circle(App.Vector(-3.92, -37.29, 0), App.Vector(0, 0, 1), 3), math.radians(0), math.radians(5.86)),  # 32
    Part.ArcOfCircle(Part.Circle(App.Vector(0, 0, 0), App.Vector(0, 0, 1), 37), math.radians(-91.45), math.radians(-76.55)),  # 33
    Part.ArcOfCircle(Part.Circle(App.Vector(11.59, -35.66, 0), App.Vector(0, 0, 1), 3), math.radians(-174), math.radians(0)),  # 34
    Part.ArcOfCircle(Part.Circle(App.Vector(11.59, -35.66, 0), App.Vector(0, 0, 1), 3), math.radians(0), math.radians(30)),  # 35
    Part.ArcOfCircle(Part.Circle(App.Vector(0, 0, 0), App.Vector(0, 0, 1), 37), math.radians(-67.45), math.radians(-52.55)),  # 36
    Part.ArcOfCircle(Part.Circle(App.Vector(25.09, -27.87, 0), App.Vector(0, 0, 1), 3), math.radians(-150), math.radians(0)),  # 37
    Part.ArcOfCircle(Part.Circle(App.Vector(25.09, -27.87, 0), App.Vector(0, 0, 1), 3), math.radians(0), math.radians(54)),  # 38
    Part.ArcOfCircle(Part.Circle(App.Vector(0, 0, 0), App.Vector(0, 0, 1), 37), math.radians(-43.45), math.radians(-28.55)),  # 39
    Part.ArcOfCircle(Part.Circle(App.Vector(34.26, -15.25, 0), App.Vector(0, 0, 1), 3), math.radians(-126), math.radians(0)),  # 40
    Part.ArcOfCircle(Part.Circle(App.Vector(34.26, -15.25, 0), App.Vector(0, 0, 1), 3), math.radians(0), math.radians(78)),  # 41
    Part.Circle(App.Vector(21.25, 36.81, 0), App.Vector(0, 0, 1), 2.1),  # 42
], False)
sketch3.addConstraint([
    Sketcher.Constraint("Coincident", 3, 2, 4, 1),
    Sketcher.Constraint("Tangent", 4, 2, 5, 1),
    Sketcher.Constraint("Coincident", 5, 2, 6, 1),
    Sketcher.Constraint("Coincident", 6, 2, 7, 1),
    Sketcher.Constraint("Tangent", 7, 2, 8, 1),
    Sketcher.Constraint("Coincident", 8, 2, 9, 1),
    Sketcher.Constraint("Coincident", 9, 2, 10, 1),
    Sketcher.Constraint("Tangent", 10, 2, 11, 1),
    Sketcher.Constraint("Coincident", 11, 2, 12, 1),
    Sketcher.Constraint("Coincident", 12, 2, 13, 1),
    Sketcher.Constraint("Tangent", 13, 2, 14, 1),
    Sketcher.Constraint("Coincident", 14, 2, 15, 1),
    Sketcher.Constraint("Coincident", 15, 2, 16, 1),
    Sketcher.Constraint("Tangent", 16, 2, 17, 1),
    Sketcher.Constraint("Coincident", 17, 2, 18, 1),
    Sketcher.Constraint("Coincident", 18, 2, 19, 1),
    Sketcher.Constraint("Coincident", 19, 2, 20, 1),
    Sketcher.Constraint("Coincident", 20, 2, 21, 1),
    Sketcher.Constraint("Coincident", 21, 2, 22, 1),
    Sketcher.Constraint("Coincident", 22, 2, 23, 1),
    Sketcher.Constraint("Coincident", 23, 2, 24, 1),
    Sketcher.Constraint("Coincident", 24, 2, 25, 1),
    Sketcher.Constraint("Coincident", 25, 2, 26, 1),
    Sketcher.Constraint("Coincident", 26, 2, 27, 1),
    Sketcher.Constraint("Coincident", 27, 2, 28, 1),
    Sketcher.Constraint("Coincident", 28, 2, 29, 1),
    Sketcher.Constraint("Coincident", 29, 2, 30, 1),
    Sketcher.Constraint("Coincident", 30, 2, 31, 1),
    Sketcher.Constraint("Tangent", 31, 2, 32, 1),
    Sketcher.Constraint("Coincident", 32, 2, 33, 1),
    Sketcher.Constraint("Coincident", 33, 2, 34, 1),
    Sketcher.Constraint("Tangent", 34, 2, 35, 1),
    Sketcher.Constraint("Coincident", 35, 2, 36, 1),
    Sketcher.Constraint("Coincident", 36, 2, 37, 1),
    Sketcher.Constraint("Tangent", 37, 2, 38, 1),
    Sketcher.Constraint("Coincident", 38, 2, 39, 1),
    Sketcher.Constraint("Coincident", 39, 2, 40, 1),
    Sketcher.Constraint("Tangent", 40, 2, 41, 1),
    Sketcher.Constraint("Coincident", 41, 2, 3, 1),
    Sketcher.Constraint("Coincident", 0, 3, -1, 1),
    Sketcher.Constraint("Coincident", 3, 3, -1, 1),
    Sketcher.Constraint("Coincident", 6, 3, -1, 1),
    Sketcher.Constraint("Coincident", 9, 3, -1, 1),
    Sketcher.Constraint("Coincident", 12, 3, -1, 1),
    Sketcher.Constraint("Coincident", 15, 3, -1, 1),
    Sketcher.Constraint("Coincident", 18, 3, -1, 1),
    Sketcher.Constraint("Coincident", 20, 3, -1, 1),
    Sketcher.Constraint("Coincident", 22, 3, -1, 1),
    Sketcher.Constraint("Coincident", 24, 3, -1, 1),
    Sketcher.Constraint("Coincident", 26, 3, -1, 1),
    Sketcher.Constraint("Coincident", 28, 3, -1, 1),
    Sketcher.Constraint("Coincident", 30, 3, -1, 1),
    Sketcher.Constraint("Coincident", 33, 3, -1, 1),
    Sketcher.Constraint("Coincident", 36, 3, -1, 1),
    Sketcher.Constraint("Coincident", 39, 3, -1, 1),
    Sketcher.Constraint("Equal", 1, 2),
    Sketcher.Constraint("Equal", 4, 5),
    Sketcher.Constraint("Equal", 3, 6),
    Sketcher.Constraint("Equal", 5, 7),
    Sketcher.Constraint("Equal", 7, 8),
    Sketcher.Constraint("Equal", 6, 9),
    Sketcher.Constraint("Equal", 8, 10),
    Sketcher.Constraint("Equal", 10, 11),
    Sketcher.Constraint("Equal", 9, 12),
    Sketcher.Constraint("Equal", 11, 13),
    Sketcher.Constraint("Equal", 13, 14),
    Sketcher.Constraint("Equal", 12, 15),
    Sketcher.Constraint("Equal", 14, 16),
    Sketcher.Constraint("Equal", 16, 17),
    Sketcher.Constraint("Equal", 15, 18),
    Sketcher.Constraint("Equal", 17, 19),
    Sketcher.Constraint("Equal", 18, 20),
    Sketcher.Constraint("Equal", 19, 21),
    Sketcher.Constraint("Equal", 20, 22),
    Sketcher.Constraint("Equal", 21, 23),
    Sketcher.Constraint("Equal", 22, 24),
    Sketcher.Constraint("Equal", 23, 25),
    Sketcher.Constraint("Equal", 24, 26),
    Sketcher.Constraint("Equal", 25, 27),
    Sketcher.Constraint("Equal", 26, 28),
    Sketcher.Constraint("Equal", 27, 29),
    Sketcher.Constraint("Equal", 28, 30),
    Sketcher.Constraint("Equal", 29, 31),
    Sketcher.Constraint("Equal", 31, 32),
    Sketcher.Constraint("Equal", 30, 33),
    Sketcher.Constraint("Equal", 32, 34),
    Sketcher.Constraint("Equal", 34, 35),
    Sketcher.Constraint("Equal", 33, 36),
    Sketcher.Constraint("Equal", 35, 37),
    Sketcher.Constraint("Equal", 37, 38),
    Sketcher.Constraint("Equal", 36, 39),
    Sketcher.Constraint("Equal", 38, 40),
    Sketcher.Constraint("Equal", 40, 41),
    Sketcher.Constraint("Equal", 2, 42),
    Sketcher.Constraint("Symmetric", 23, 3, 25, 3, -1),
    Sketcher.Constraint("Symmetric", 21, 3, 27, 3, -1),
    Sketcher.Constraint("Symmetric", 19, 3, 29, 3, -1),
    Sketcher.Constraint("Symmetric", 16, 3, 31, 3, -1),
    Sketcher.Constraint("Symmetric", 13, 3, 34, 3, -1),
    Sketcher.Constraint("Symmetric", 10, 3, 37, 3, -1),
    Sketcher.Constraint("Symmetric", 7, 3, 40, 3, -1),
    Sketcher.Constraint("Symmetric", 2, 3, 42, 3, -1),
    Sketcher.Constraint("PointOnObject", 1, 3, -1),
    Sketcher.Constraint("PointOnObject", 4, 3, -1),
    Sketcher.Constraint("PointOnObject", 4, 2, -1),
    Sketcher.Constraint("Horizontal", 8, 3, 7, 2),
    Sketcher.Constraint("Horizontal", 11, 3, 10, 2),
    Sketcher.Constraint("Horizontal", 14, 3, 13, 2),
    Sketcher.Constraint("Horizontal", 17, 3, 16, 2),
    Sketcher.Constraint("Horizontal", 32, 3, 31, 2),
    Sketcher.Constraint("Horizontal", 35, 3, 34, 2),
    Sketcher.Constraint("Horizontal", 38, 3, 37, 2),
    Sketcher.Constraint("Horizontal", 41, 3, 40, 2),
    Sketcher.Constraint("Radius", 3, Q("37 mm")),
    Sketcher.Constraint("Radius", 4, Q("3 mm")),
    Sketcher.Constraint("Diameter", 0, Q("91.7 mm")),
    Sketcher.Constraint("Diameter", 1, Q("4.2 mm")),
    Sketcher.Constraint("DistanceX", 1, 3, -1, 1, Q("42.5 mm")),
    Sketcher.Constraint("DistanceX", -1, 1, 4, 3, Q("37.5 mm")),
    Sketcher.Constraint("DistanceX", -1, 1, 2, 3, Q("21.25 mm")),
    Sketcher.Constraint("DistanceX", 19, 3, -1, 1, Q("18.75 mm")),
    Sketcher.Constraint("DistanceY", -1, 1, 20, 2, Q("24.054702 mm")),
    Sketcher.Constraint("DistanceY", 2, 3, -1, 1, Q("36.80608 mm")),
    Sketcher.Constraint("DistanceY", -1, 1, 10, 3, Q("27.867931 mm")),
    Sketcher.Constraint("DistanceY", -1, 1, 13, 3, Q("35.664619 mm")),
    Sketcher.Constraint("DistanceY", -1, 1, 16, 3, Q("37.294571 mm")),
    Sketcher.Constraint("DistanceY", -1, 1, 23, 3, Q("7.796688 mm")),
    Sketcher.Constraint("DistanceY", -1, 1, 6, 2, Q("12.319692 mm")),
    Sketcher.Constraint("DistanceX", -1, 1, 8, 2, Q("32.500449 mm")),
    Sketcher.Constraint("DistanceX", -1, 1, 11, 2, Q("22.497941 mm")),
    Sketcher.Constraint("DistanceX", -1, 1, 12, 2, Q("14.189818 mm")),
    Sketcher.Constraint("DistanceY", -1, 1, 15, 2, Q("36.988171 mm")),
    Sketcher.Constraint("DistanceX", 18, 2, -1, 1, Q("15.899071 mm")),
    Sketcher.Constraint("DistanceX", 22, 2, -1, 1, Q("35.466929 mm")),
    Sketcher.Constraint("DistanceX", 21, 3, -1, 1, Q("30.338137 mm")),
])
sketch3.setExpression("Constraints[113]", "Params.sketch3_radius")
sketch3.setExpression("Constraints[114]", "Params.sketch3_radius2")
sketch3.setExpression("Constraints[115]", "Params.sketch3_diameter")
sketch3.setExpression("Constraints[116]", "Params.sketch3_diameter2")
pad2 = body.newObject("PartDesign::Pad", "Pad001")
pad2.Profile = sketch3
pad2.setExpression("Length", "Params.pad2_length")

doc.recompute()
